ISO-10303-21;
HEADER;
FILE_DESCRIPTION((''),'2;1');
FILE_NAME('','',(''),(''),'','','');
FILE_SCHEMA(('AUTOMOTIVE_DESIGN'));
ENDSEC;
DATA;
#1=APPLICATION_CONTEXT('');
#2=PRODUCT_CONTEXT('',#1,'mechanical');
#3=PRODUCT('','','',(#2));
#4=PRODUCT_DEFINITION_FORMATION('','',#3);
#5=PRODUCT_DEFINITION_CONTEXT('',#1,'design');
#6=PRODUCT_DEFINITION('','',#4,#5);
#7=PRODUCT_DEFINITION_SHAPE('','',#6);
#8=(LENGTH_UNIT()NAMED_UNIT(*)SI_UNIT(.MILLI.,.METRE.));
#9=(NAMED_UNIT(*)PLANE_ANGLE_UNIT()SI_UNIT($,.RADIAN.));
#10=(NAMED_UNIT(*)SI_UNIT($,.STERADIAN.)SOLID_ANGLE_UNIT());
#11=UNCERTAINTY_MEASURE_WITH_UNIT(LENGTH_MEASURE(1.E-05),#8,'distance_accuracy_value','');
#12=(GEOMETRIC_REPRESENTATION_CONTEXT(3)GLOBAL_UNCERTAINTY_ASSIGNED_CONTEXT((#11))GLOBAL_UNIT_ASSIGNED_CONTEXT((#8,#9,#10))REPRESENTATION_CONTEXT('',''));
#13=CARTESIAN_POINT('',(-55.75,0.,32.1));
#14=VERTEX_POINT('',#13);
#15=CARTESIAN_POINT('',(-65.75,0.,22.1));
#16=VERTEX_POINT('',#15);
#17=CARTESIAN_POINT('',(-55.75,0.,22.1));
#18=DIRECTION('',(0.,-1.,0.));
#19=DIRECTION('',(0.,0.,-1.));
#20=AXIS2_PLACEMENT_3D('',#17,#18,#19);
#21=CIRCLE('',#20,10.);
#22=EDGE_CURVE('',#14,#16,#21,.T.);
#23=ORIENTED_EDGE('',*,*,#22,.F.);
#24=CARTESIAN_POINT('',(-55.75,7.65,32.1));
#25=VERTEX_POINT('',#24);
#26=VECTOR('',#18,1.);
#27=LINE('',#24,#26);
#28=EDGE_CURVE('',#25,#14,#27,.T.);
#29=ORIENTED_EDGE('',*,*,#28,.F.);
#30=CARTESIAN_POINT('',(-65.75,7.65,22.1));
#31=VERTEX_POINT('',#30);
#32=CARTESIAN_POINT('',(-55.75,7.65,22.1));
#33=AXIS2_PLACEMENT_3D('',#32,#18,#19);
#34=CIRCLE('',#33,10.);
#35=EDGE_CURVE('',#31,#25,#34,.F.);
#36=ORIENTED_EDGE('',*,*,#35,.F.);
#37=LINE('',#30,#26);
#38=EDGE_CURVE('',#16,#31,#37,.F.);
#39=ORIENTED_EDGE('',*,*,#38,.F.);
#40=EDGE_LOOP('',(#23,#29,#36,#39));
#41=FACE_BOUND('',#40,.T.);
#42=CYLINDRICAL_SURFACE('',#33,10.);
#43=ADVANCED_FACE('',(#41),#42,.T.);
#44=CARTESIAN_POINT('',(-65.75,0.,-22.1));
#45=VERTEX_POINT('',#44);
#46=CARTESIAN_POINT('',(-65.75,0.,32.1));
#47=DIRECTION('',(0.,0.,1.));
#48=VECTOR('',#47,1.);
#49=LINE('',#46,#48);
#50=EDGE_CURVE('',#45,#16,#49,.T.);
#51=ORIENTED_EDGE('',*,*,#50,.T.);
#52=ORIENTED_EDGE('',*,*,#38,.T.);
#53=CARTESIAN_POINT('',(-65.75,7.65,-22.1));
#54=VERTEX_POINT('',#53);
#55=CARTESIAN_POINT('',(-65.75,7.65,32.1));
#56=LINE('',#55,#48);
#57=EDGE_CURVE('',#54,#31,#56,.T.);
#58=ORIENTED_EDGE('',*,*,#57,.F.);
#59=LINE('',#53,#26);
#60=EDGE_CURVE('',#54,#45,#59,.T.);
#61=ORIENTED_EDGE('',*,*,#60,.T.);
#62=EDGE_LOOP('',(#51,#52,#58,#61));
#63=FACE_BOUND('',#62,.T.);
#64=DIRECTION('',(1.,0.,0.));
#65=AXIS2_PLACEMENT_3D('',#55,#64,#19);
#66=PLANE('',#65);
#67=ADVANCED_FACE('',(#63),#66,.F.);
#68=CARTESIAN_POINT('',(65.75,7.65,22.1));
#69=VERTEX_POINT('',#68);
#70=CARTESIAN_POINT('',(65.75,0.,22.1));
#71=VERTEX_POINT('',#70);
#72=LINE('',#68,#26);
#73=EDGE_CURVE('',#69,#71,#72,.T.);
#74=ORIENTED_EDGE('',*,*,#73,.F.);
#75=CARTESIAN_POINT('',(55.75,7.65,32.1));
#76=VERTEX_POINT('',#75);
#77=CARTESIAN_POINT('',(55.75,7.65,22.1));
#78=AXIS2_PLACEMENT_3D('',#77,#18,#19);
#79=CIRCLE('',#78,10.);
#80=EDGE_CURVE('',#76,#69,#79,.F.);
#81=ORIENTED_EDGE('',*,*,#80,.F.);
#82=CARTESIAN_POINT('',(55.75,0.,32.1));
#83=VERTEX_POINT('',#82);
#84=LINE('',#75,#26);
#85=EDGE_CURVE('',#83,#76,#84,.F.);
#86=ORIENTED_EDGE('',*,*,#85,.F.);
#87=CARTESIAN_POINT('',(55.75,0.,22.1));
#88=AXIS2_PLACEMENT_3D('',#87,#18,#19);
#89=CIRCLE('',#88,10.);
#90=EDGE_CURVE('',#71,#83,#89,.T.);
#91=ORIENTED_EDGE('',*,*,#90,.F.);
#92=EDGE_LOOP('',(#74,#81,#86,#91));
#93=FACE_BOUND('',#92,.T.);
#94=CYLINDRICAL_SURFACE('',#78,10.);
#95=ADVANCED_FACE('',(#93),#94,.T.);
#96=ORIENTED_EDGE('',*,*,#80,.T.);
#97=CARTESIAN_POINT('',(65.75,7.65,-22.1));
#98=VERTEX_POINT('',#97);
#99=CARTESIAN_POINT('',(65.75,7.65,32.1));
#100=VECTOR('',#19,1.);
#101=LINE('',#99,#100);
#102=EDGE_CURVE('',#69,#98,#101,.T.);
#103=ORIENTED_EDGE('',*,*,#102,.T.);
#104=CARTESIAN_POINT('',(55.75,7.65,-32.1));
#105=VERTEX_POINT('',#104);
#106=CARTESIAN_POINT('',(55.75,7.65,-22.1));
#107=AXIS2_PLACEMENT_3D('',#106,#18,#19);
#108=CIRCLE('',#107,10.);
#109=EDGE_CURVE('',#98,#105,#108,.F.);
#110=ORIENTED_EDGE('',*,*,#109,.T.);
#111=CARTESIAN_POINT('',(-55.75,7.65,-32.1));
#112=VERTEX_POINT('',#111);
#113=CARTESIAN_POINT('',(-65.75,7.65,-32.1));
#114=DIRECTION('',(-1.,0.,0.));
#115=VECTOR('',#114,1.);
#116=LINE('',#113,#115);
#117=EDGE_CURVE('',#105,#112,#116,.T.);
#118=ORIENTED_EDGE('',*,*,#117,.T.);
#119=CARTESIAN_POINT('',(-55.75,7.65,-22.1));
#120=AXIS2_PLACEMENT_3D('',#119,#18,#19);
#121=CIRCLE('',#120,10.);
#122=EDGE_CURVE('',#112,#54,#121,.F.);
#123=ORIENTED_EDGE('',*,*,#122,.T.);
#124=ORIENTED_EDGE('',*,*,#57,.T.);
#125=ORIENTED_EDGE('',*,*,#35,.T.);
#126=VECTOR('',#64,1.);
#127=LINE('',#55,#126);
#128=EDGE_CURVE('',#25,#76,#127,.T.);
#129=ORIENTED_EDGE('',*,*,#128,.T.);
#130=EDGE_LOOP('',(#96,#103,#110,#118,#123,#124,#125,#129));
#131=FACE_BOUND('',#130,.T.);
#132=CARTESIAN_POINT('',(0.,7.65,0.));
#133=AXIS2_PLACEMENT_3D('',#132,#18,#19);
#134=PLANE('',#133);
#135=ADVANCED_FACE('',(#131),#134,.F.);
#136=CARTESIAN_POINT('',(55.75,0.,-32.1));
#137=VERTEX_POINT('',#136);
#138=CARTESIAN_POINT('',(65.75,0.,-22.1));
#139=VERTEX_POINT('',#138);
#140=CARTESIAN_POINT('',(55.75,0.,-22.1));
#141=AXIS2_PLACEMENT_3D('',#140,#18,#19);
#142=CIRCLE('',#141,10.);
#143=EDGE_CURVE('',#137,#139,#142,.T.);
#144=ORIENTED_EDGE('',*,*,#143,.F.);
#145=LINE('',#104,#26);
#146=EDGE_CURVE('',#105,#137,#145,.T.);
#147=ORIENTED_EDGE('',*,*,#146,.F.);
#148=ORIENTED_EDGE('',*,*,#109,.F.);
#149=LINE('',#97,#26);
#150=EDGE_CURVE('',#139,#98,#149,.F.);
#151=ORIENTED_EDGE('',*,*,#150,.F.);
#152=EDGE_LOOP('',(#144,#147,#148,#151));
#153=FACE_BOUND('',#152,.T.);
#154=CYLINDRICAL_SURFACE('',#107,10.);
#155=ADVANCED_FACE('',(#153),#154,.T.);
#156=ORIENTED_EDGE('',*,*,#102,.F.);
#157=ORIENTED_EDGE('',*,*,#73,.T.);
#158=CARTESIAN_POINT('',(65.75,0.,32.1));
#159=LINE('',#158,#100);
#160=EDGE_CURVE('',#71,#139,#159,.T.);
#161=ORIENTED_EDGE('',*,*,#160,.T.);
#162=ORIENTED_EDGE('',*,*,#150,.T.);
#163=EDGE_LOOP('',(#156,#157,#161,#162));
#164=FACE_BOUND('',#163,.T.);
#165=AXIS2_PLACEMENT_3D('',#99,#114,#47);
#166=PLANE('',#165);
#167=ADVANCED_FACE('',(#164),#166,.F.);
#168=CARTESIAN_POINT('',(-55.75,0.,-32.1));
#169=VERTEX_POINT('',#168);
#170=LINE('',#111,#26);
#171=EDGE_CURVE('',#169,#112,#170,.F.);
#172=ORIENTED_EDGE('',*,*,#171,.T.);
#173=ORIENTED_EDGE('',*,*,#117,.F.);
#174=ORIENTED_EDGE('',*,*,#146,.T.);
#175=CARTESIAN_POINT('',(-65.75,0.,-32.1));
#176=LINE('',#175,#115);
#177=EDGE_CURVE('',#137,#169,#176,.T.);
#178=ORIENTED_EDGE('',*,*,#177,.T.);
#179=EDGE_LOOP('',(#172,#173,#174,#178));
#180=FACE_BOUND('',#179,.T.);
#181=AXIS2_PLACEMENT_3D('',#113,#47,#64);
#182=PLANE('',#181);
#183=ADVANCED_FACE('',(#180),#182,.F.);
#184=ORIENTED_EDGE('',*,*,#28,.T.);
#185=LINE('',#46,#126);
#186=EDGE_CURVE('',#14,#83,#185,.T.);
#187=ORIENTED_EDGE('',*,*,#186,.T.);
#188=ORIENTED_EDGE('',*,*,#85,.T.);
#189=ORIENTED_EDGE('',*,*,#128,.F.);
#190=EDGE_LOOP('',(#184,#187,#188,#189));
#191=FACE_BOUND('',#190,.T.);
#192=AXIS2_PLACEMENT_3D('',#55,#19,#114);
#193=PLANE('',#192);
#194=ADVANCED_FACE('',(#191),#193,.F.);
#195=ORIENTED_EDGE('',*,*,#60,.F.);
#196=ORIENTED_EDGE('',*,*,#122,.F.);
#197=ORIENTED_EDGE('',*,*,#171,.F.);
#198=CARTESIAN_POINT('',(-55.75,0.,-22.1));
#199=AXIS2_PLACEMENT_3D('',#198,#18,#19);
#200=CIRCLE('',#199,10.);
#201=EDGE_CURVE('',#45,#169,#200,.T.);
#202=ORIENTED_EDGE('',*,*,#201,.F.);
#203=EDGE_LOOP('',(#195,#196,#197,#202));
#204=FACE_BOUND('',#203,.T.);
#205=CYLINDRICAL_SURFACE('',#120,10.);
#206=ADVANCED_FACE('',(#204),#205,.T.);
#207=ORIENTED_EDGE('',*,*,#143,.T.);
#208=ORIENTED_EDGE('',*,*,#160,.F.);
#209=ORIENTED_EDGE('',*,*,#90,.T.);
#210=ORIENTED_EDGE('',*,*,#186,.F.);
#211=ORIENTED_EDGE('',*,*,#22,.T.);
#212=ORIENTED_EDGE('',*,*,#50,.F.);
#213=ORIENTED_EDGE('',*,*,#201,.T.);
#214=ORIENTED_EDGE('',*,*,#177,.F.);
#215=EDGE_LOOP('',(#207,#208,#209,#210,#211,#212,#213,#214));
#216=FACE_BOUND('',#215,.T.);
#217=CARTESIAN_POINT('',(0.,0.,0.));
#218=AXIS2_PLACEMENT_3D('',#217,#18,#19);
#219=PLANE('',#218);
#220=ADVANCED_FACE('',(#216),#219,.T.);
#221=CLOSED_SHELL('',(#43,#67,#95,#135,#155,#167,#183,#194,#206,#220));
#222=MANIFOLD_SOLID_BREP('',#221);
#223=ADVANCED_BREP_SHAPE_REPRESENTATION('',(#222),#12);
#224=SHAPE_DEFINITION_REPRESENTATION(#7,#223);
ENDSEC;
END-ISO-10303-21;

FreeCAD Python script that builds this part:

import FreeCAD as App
import Part
import Sketcher

V = App.Vector
Q = App.Units.Quantity


def edges_at(feature, points):
    """Names of the edges that pass closest to the given points."""
    edges = feature.Shape.Edges
    near = lambda p: min(range(len(edges)), key=lambda i: edges[i].distToShape(Part.Vertex(*p))[0])
    return sorted({f"Edge{near(p) + 1}" for p in points})


def add_polygon(sketch, points):
    """Adds a closed chain of lines whose ends are joined by coincident constraints."""
    first, n = sketch.GeometryCount, len(points)
    for a, b in zip(points, points[1:] + points[:1]):
        sketch.addGeometry(Part.LineSegment(App.Vector(*a, 0), App.Vector(*b, 0)), False)
    for i in range(n):
        sketch.addConstraint(Sketcher.Constraint("Coincident", first + i, 2, first + (i + 1) % n, 1))

doc = App.newDocument("Part")
params = doc.addObject("Spreadsheet::Sheet", "Params")
for row, (alias, value) in enumerate([
    ("sketch1_width", "131.5 mm"),
    ("sketch1_height", "64.2 mm"),
    ("pad1_length", "7.65 mm"),
    ("fillet_radius", "10 mm"),
], start=1):
    params.set(f"A{row}", alias)
    params.set(f"B{row}", "=" + value)
    params.setAlias(f"B{row}", alias)

body = doc.addObject("PartDesign::Body", "Body")

# Sketch on XZ plane
sketch1 = doc.addObject("Sketcher::SketchObject", "Sketch")
body.addObject(sketch1)
sketch1.AttachmentSupport = (doc.XZ_Plane, [""])
sketch1.MapMode = "FlatFace"
add_polygon(sketch1, [(-66, -32), (-66, 32), (66, 32), (66, -32)])  # lines 0-3
sketch1.addConstraint(Sketcher.Constraint("Vertical", 0))
sketch1.addConstraint(Sketcher.Constraint("Horizontal", 1))
sketch1.addConstraint(Sketcher.Constraint("Vertical", 2))
sketch1.addConstraint(Sketcher.Constraint("Horizontal", 3))
sketch1.addConstraint(Sketcher.Constraint("Symmetric", 0, 2, 2, 2, -1, 1))
sketch1.addConstraint(Sketcher.Constraint("DistanceX", 1, 1, 1, 2, Q("131.5 mm")))
sketch1.addConstraint(Sketcher.Constraint("DistanceY", 0, 1, 0, 2, Q("64.2 mm")))
sketch1.setExpression("Constraints[9]", "Params.sketch1_width")
sketch1.setExpression("Constraints[10]", "Params.sketch1_height")
pad1 = doc.addObject("PartDesign::Pad", "Pad")
body.addObject(pad1)
pad1.Profile = sketch1
pad1.setExpression("Length", "Params.pad1_length")
pad1.Reversed = True
doc.recompute()

fillet = doc.addObject("PartDesign::Fillet", "Fillet")
body.addObject(fillet)
fillet.Base = (pad1, edges_at(pad1, [
    (65.75, 3.825, 32.1),
    (-65.75, 3.825, 32.1),
    (-65.75, 3.825, -32.1),
    (65.75, 3.825, -32.1),
]))
fillet.setExpression("Radius", "Params.fillet_radius")

doc.recompute()
